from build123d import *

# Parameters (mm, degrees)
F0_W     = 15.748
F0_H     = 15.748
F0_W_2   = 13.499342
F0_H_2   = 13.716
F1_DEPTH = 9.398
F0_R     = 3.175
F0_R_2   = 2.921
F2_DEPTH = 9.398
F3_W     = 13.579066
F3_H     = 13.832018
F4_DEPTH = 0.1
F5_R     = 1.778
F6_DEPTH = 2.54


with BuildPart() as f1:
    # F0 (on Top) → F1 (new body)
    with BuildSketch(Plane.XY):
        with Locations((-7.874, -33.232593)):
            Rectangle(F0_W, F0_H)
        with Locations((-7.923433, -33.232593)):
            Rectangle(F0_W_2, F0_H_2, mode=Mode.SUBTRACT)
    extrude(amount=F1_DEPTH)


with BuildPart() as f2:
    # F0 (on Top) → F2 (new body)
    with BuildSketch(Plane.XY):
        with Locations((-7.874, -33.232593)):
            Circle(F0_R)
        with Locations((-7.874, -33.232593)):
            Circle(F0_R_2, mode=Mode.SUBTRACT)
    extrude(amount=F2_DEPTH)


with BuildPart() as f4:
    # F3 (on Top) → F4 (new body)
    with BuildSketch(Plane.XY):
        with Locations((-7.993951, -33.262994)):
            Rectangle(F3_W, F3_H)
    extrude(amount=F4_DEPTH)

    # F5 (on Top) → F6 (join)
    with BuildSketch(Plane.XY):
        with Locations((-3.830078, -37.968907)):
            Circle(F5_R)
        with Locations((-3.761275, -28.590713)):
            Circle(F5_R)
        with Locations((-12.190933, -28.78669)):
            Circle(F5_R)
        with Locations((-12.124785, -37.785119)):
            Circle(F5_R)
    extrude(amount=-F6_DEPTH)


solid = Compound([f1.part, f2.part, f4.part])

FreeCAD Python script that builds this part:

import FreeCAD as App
import Part
import Sketcher
Q = App.Units.Quantity

doc = App.newDocument("Part")
body = doc.addObject("PartDesign::Body", "Body")

# Sketch on XY plane
sketch1 = body.newObject("Sketcher::SketchObject", "Sketch")
sketch1.AttachmentSupport = (doc.getObject("XY_Plane"), [""])
sketch1.MapMode = "FlatFace"
sketch1.addGeometry(Part.LineSegment(App.Vector(-16, -25, 0), App.Vector(-16, -41, 0)), False)
sketch1.addGeometry(Part.LineSegment(App.Vector(-16, -41, 0), App.Vector(0, -41, 0)), False)
sketch1.addGeometry(Part.LineSegment(App.Vector(0, -41, 0), App.Vector(0, -25, 0)), False)
sketch1.addGeometry(Part.LineSegment(App.Vector(0, -25, 0), App.Vector(-16, -25, 0)), False)
sketch1.addGeometry(Part.LineSegment(App.Vector(-1, -40, 0), App.Vector(-15, -40, 0)), False)
sketch1.addGeometry(Part.LineSegment(App.Vector(-15, -40, 0), App.Vector(-15, -26, 0)), False)
sketch1.addGeometry(Part.LineSegment(App.Vector(-15, -26, 0), App.Vector(-1, -26, 0)), False)
sketch1.addGeometry(Part.LineSegment(App.Vector(-1, -26, 0), App.Vector(-1, -40, 0)), False)
sketch1.addConstraint(Sketcher.Constraint("Coincident", 0, 2, 1, 1))
sketch1.addConstraint(Sketcher.Constraint("Coincident", 1, 2, 2, 1))
sketch1.addConstraint(Sketcher.Constraint("Coincident", 2, 2, 3, 1))
sketch1.addConstraint(Sketcher.Constraint("Coincident", 3, 2, 0, 1))
sketch1.addConstraint(Sketcher.Constraint("Coincident", 4, 2, 5, 1))
sketch1.addConstraint(Sketcher.Constraint("Coincident", 5, 2, 6, 1))
sketch1.addConstraint(Sketcher.Constraint("Coincident", 6, 2, 7, 1))
sketch1.addConstraint(Sketcher.Constraint("Coincident", 7, 2, 4, 1))
sketch1.addConstraint(Sketcher.Constraint("Vertical", 0))
sketch1.addConstraint(Sketcher.Constraint("Horizontal", 1))
sketch1.addConstraint(Sketcher.Constraint("Vertical", 2))
sketch1.addConstraint(Sketcher.Constraint("Horizontal", 3))
sketch1.addConstraint(Sketcher.Constraint("Horizontal", 4))
sketch1.addConstraint(Sketcher.Constraint("Vertical", 5))
sketch1.addConstraint(Sketcher.Constraint("Horizontal", 6))
sketch1.addConstraint(Sketcher.Constraint("Vertical", 7))
sketch1.addConstraint(Sketcher.Constraint("PointOnObject", 1, 2, -2))
sketch1.addConstraint(Sketcher.Constraint("Equal", 3, 0))
sketch1.addConstraint(Sketcher.Constraint("DistanceX", 1, 1, 1, 2, Q("0.62 in")))
sketch1.addConstraint(Sketcher.Constraint("DistanceY", 5, 1, 5, 2, Q("0.54 in")))
sketch1.addConstraint(Sketcher.Constraint("DistanceY", 0, 2, 4, 2, Q("0.04 in")))
sketch1.addConstraint(Sketcher.Constraint("DistanceX", 4, 2, 4, 1, 13.499342))
sketch1.addConstraint(Sketcher.Constraint("DistanceY", 0, 2, -1, 1, 41.106593))
sketch1.addConstraint(Sketcher.Constraint("DistanceX", 4, 2, -1, 1, 14.673104))
pad1 = body.newObject("PartDesign::Pad", "Pad")
pad1.Profile = sketch1
pad1.Length = Q("0.37 in")
body2 = doc.addObject("PartDesign::Body", "Body001")

# Sketch on XY plane
sketch2 = body2.newObject("Sketcher::SketchObject", "Sketch001")
sketch2.AttachmentSupport = (doc.getObject("XY_Plane001"), [""])
sketch2.MapMode = "FlatFace"
sketch2.addGeometry(Part.Circle(App.Vector(-7.9, -33.2, 0), App.Vector(0, 0, 1), 3.2), False)
sketch2.addGeometry(Part.Circle(App.Vector(-7.9, -33.2, 0), App.Vector(0, 0, 1), 2.9), False)
sketch2.addConstraint(Sketcher.Constraint("Coincident", 1, 3, 0, 3))
sketch2.addConstraint(Sketcher.Constraint("Diameter", 0, Q("0.25 in")))
sketch2.addConstraint(Sketcher.Constraint("Diameter", 1, Q("0.23 in")))
sketch2.addConstraint(Sketcher.Constraint("DistanceX", 0, 3, -1, 1, Q("0.31 in")))
sketch2.addConstraint(Sketcher.Constraint("DistanceY", 0, 3, -1, 1, 33.232593))
pad2 = body2.newObject("PartDesign::Pad", "Pad001")
pad2.Profile = sketch2
pad2.Length = Q("0.37 in")
body3 = doc.addObject("PartDesign::Body", "Body002")

# Sketch on XY plane
sketch3 = body3.newObject("Sketcher::SketchObject", "Sketch002")
sketch3.AttachmentSupport = (doc.getObject("XY_Plane002"), [""])
sketch3.MapMode = "FlatFace"
sketch3.addGeometry(Part.LineSegment(App.Vector(-15, -26, 0), App.Vector(-15, -40, 0)), False)
sketch3.addGeometry(Part.LineSegment(App.Vector(-15, -40, 0), App.Vector(-1, -40, 0)), False)
sketch3.addGeometry(Part.LineSegment(App.Vector(-1, -40, 0), App.Vector(-1, -26, 0)), False)
sketch3.addGeometry(Part.LineSegment(App.Vector(-1, -26, 0), App.Vector(-15, -26, 0)), False)
sketch3.addConstraint(Sketcher.Constraint("Coincident", 0, 2, 1, 1))
sketch3.addConstraint(Sketcher.Constraint("Coincident", 1, 2, 2, 1))
sketch3.addConstraint(Sketcher.Constraint("Coincident", 2, 2, 3, 1))
sketch3.addConstraint(Sketcher.Constraint("Coincident", 3, 2, 0, 1))
sketch3.addConstraint(Sketcher.Constraint("Vertical", 0))
sketch3.addConstraint(Sketcher.Constraint("Horizontal", 1))
sketch3.addConstraint(Sketcher.Constraint("Vertical", 2))
sketch3.addConstraint(Sketcher.Constraint("Horizontal", 3))
sketch3.addConstraint(Sketcher.Constraint("DistanceY", 0, 2, 0, 1, 13.832018))
sketch3.addConstraint(Sketcher.Constraint("DistanceX", 1, 1, 1, 2, 13.579066))
sketch3.addConstraint(Sketcher.Constraint("DistanceX", 0, 2, -1, 1, 14.783484))
sketch3.addConstraint(Sketcher.Constraint("DistanceY", 0, 2, -1, 1, 40.179003))
pad3 = body3.newObject("PartDesign::Pad", "Pad002")
pad3.Profile = sketch3
pad3.Length = 0.1

# Sketch on XY plane
sketch4 = body3.newObject("Sketcher::SketchObject", "Sketch003")
sketch4.AttachmentSupport = (doc.getObject("XY_Plane002"), [""])
sketch4.MapMode = "FlatFace"
sketch4.addGeometry(Part.Circle(App.Vector(-3.8, -38, 0), App.Vector(0, 0, 1), 1.8), False)
sketch4.addGeometry(Part.Circle(App.Vector(-3.8, -28.6, 0), App.Vector(0, 0, 1), 1.8), False)
sketch4.addGeometry(Part.Circle(App.Vector(-12.2, -28.8, 0), App.Vector(0, 0, 1), 1.8), False)
sketch4.addGeometry(Part.Circle(App.Vector(-12.1, -37.8, 0), App.Vector(0, 0, 1), 1.8), False)
sketch4.addConstraint(Sketcher.Constraint("Equal", 0, 1))
sketch4.addConstraint(Sketcher.Constraint("Equal", 1, 2))
sketch4.addConstraint(Sketcher.Constraint("Equal", 2, 3))
sketch4.addConstraint(Sketcher.Constraint("Diameter", 0, Q("0.14 in")))
sketch4.addConstraint(Sketcher.Constraint("DistanceY", 2, 3, -1, 1, 28.78669))
sketch4.addConstraint(Sketcher.Constraint("DistanceY", 3, 3, -1, 1, 37.785119))
sketch4.addConstraint(Sketcher.Constraint("DistanceX", 2, 3, 3, 3, 0.066148))
sketch4.addConstraint(Sketcher.Constraint("DistanceX", 3, 3, 1, 3, 8.36351))
sketch4.addConstraint(Sketcher.Constraint("DistanceX", 0, 3, -1, 1, 3.830078))
sketch4.addConstraint(Sketcher.Constraint("DistanceY", 0, 3, -1, 1, 37.968907))
sketch4.addConstraint(Sketcher.Constraint("DistanceX", 1, 3, -1, 1, 3.761275))
sketch4.addConstraint(Sketcher.Constraint("DistanceY", 1, 3, -1, 1, 28.590713))
pad4 = body3.newObject("PartDesign::Pad", "Pad003")
pad4.Profile = sketch4
pad4.Length = Q("0.1 in")
pad4.Reversed = True

doc.recompute()
